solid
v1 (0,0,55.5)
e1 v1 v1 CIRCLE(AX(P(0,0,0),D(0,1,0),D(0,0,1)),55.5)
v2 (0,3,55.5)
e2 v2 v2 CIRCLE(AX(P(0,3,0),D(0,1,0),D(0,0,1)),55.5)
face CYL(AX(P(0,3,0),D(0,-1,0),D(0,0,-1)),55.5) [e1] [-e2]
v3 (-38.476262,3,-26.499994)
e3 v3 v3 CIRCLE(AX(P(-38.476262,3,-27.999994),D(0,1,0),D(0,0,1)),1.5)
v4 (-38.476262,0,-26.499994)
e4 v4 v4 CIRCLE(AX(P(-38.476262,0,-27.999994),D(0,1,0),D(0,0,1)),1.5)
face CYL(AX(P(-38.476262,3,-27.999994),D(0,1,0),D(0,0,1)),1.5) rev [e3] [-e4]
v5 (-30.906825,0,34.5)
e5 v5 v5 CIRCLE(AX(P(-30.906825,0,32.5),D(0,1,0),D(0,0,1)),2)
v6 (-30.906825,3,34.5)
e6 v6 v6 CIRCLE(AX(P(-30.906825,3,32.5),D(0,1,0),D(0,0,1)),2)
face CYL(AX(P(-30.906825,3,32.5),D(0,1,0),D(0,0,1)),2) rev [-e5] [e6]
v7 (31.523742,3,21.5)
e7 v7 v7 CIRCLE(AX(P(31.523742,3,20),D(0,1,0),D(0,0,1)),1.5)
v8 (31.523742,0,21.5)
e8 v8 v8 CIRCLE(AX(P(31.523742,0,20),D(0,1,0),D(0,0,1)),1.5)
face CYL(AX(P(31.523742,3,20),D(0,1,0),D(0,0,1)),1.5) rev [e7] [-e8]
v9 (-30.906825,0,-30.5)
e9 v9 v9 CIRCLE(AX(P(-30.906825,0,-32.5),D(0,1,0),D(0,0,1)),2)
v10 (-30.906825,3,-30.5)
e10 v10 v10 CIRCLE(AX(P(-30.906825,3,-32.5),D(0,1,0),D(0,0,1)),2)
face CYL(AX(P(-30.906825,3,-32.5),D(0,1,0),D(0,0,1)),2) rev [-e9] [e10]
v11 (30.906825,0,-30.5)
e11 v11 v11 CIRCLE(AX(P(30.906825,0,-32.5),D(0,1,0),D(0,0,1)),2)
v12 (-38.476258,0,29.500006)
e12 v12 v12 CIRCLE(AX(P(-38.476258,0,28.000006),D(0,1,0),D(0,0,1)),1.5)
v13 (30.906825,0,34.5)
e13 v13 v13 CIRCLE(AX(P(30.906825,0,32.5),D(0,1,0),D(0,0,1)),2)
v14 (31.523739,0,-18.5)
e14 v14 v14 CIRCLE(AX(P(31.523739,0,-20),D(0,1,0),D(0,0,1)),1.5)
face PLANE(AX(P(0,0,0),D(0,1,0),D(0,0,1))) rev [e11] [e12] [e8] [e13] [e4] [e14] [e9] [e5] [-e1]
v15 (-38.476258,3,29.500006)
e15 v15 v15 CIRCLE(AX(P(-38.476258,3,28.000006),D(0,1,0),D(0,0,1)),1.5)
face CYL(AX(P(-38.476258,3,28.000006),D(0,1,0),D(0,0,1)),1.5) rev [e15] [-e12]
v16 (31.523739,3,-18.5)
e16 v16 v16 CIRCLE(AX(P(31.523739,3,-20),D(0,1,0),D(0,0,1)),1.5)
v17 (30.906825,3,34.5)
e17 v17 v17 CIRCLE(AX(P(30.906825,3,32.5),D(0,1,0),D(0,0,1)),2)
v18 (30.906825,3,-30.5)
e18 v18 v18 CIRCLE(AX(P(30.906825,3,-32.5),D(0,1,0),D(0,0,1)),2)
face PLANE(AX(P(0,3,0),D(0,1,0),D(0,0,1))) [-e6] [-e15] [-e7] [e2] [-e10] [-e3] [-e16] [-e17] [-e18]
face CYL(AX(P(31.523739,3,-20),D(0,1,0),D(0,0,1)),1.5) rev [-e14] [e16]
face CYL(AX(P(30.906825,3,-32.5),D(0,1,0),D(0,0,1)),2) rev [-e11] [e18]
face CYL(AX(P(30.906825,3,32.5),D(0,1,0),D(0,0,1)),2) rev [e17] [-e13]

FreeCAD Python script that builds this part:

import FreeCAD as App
import Part
import Sketcher

V = App.Vector

doc = App.newDocument("Part")
body = doc.addObject("PartDesign::Body", "Body")

# Sketch on XZ plane
sketch1 = body.newObject("Sketcher::SketchObject", "Sketch")
sketch1.AttachmentSupport = (doc.getObject("XZ_Plane"), [""])
sketch1.MapMode = "FlatFace"
sketch1.addGeometry(Part.Circle(V(0, 0, 0), V(0, 0, 1), 55.5), False)
sketch1.addConstraint(Sketcher.Constraint("Coincident", 0, 3, -1, 1))
sketch1.addConstraint(Sketcher.Constraint("Diameter", 0, 111.0))
pad1 = body.newObject("PartDesign::Pad", "Pad")
pad1.Profile = sketch1
pad1.Length = 3
pad1.Reversed = True

# Sketch on XZ plane
sketch2 = body.newObject("Sketcher::SketchObject", "Sketch001")
sketch2.AttachmentSupport = (doc.getObject("XZ_Plane"), [""])
sketch2.MapMode = "FlatFace"
sketch2.AttachmentOffset = App.Placement(V(0, 0, -3), App.Rotation())
sketch2.addGeometry(Part.Circle(V(-38.476262, -27.999994, 0), V(0, 0, 1), 1.5), False)
sketch2.addGeometry(Part.Circle(V(31.523739, -20, 0), V(0, 0, 1), 1.5), False)
sketch2.addGeometry(Part.Circle(V(31.523742, 20, 0), V(0, 0, 1), 1.5), False)
sketch2.addGeometry(Part.Circle(V(-38.476258, 28.000006, 0), V(0, 0, 1), 1.5), False)
sketch2.addConstraint(Sketcher.Constraint("Equal", 0, 1))
sketch2.addConstraint(Sketcher.Constraint("Equal", 1, 2))
sketch2.addConstraint(Sketcher.Constraint("Equal", 2, 3))
sketch2.addConstraint(Sketcher.Constraint("Symmetric", 1, 3, 2, 3, -1))
sketch2.addConstraint(Sketcher.Constraint("Diameter", 0, 3.0))
sketch2.addConstraint(Sketcher.Constraint("DistanceY", 1, 3, -1, 1, 20.0))
sketch2.addConstraint(Sketcher.Constraint("DistanceX", 0, 3, 1, 3, 70.000001))
sketch2.addConstraint(Sketcher.Constraint("DistanceY", 0, 3, 3, 3, 56.0))
sketch2.addConstraint(Sketcher.Constraint("DistanceX", 3, 3, 2, 3, 69.999999))
sketch2.addConstraint(Sketcher.Constraint("DistanceX", -1, 1, 1, 3, 31.523739))
sketch2.addConstraint(Sketcher.Constraint("DistanceY", 0, 3, -1, 1, 27.999994))
doc.recompute()
hole = body.newObject("PartDesign::Hole", "Hole")
hole.Profile = sketch2
hole.ThreadType = "None"
hole.Diameter = 3
hole.DepthType = "Dimension"
hole.Depth = 25.4
hole.DrillPoint = "Angled"
hole.DrillPointAngle = 118
hole.Reversed = True

# Sketch on XZ plane
sketch3 = body.newObject("Sketcher::SketchObject", "Sketch002")
sketch3.AttachmentSupport = (doc.getObject("XZ_Plane"), [""])
sketch3.MapMode = "FlatFace"
sketch3.AttachmentOffset = App.Placement(V(0, 0, -3), App.Rotation())
sketch3.addGeometry(Part.Circle(V(-30.906825, -32.5, 0), V(0, 0, 1), 2), False)
sketch3.addGeometry(Part.Circle(V(30.906825, -32.5, 0), V(0, 0, 1), 2), False)
sketch3.addGeometry(Part.Circle(V(30.906825, 32.5, 0), V(0, 0, 1), 2), False)
sketch3.addGeometry(Part.Circle(V(-30.906825, 32.5, 0), V(0, 0, 1), 2), False)
sketch3.addConstraint(Sketcher.Constraint("Equal", 0, 1))
sketch3.addConstraint(Sketcher.Constraint("Equal", 1, 2))
sketch3.addConstraint(Sketcher.Constraint("Equal", 2, 3))
sketch3.addConstraint(Sketcher.Constraint("Symmetric", 0, 3, 2, 3, -1, 1))
sketch3.addConstraint(Sketcher.Constraint("Symmetric", 1, 3, 3, 3, -1, 1))
sketch3.addConstraint(Sketcher.Constraint("Symmetric", 0, 3, 1, 3, -2))
sketch3.addConstraint(Sketcher.Constraint("Diameter", 0, 4.0))
sketch3.addConstraint(Sketcher.Constraint("DistanceY", 1, 3, 2, 3, 65.0))
sketch3.addConstraint(Sketcher.Constraint("DistanceX", 0, 3, 1, 3, 61.81365))
doc.recompute()
hole2 = body.newObject("PartDesign::Hole", "Hole001")
hole2.Profile = sketch3
hole2.ThreadType = "None"
hole2.Diameter = 4
hole2.DepthType = "Dimension"
hole2.Depth = 25.4
hole2.DrillPoint = "Angled"
hole2.DrillPointAngle = 118
hole2.Reversed = True

doc.recompute()
